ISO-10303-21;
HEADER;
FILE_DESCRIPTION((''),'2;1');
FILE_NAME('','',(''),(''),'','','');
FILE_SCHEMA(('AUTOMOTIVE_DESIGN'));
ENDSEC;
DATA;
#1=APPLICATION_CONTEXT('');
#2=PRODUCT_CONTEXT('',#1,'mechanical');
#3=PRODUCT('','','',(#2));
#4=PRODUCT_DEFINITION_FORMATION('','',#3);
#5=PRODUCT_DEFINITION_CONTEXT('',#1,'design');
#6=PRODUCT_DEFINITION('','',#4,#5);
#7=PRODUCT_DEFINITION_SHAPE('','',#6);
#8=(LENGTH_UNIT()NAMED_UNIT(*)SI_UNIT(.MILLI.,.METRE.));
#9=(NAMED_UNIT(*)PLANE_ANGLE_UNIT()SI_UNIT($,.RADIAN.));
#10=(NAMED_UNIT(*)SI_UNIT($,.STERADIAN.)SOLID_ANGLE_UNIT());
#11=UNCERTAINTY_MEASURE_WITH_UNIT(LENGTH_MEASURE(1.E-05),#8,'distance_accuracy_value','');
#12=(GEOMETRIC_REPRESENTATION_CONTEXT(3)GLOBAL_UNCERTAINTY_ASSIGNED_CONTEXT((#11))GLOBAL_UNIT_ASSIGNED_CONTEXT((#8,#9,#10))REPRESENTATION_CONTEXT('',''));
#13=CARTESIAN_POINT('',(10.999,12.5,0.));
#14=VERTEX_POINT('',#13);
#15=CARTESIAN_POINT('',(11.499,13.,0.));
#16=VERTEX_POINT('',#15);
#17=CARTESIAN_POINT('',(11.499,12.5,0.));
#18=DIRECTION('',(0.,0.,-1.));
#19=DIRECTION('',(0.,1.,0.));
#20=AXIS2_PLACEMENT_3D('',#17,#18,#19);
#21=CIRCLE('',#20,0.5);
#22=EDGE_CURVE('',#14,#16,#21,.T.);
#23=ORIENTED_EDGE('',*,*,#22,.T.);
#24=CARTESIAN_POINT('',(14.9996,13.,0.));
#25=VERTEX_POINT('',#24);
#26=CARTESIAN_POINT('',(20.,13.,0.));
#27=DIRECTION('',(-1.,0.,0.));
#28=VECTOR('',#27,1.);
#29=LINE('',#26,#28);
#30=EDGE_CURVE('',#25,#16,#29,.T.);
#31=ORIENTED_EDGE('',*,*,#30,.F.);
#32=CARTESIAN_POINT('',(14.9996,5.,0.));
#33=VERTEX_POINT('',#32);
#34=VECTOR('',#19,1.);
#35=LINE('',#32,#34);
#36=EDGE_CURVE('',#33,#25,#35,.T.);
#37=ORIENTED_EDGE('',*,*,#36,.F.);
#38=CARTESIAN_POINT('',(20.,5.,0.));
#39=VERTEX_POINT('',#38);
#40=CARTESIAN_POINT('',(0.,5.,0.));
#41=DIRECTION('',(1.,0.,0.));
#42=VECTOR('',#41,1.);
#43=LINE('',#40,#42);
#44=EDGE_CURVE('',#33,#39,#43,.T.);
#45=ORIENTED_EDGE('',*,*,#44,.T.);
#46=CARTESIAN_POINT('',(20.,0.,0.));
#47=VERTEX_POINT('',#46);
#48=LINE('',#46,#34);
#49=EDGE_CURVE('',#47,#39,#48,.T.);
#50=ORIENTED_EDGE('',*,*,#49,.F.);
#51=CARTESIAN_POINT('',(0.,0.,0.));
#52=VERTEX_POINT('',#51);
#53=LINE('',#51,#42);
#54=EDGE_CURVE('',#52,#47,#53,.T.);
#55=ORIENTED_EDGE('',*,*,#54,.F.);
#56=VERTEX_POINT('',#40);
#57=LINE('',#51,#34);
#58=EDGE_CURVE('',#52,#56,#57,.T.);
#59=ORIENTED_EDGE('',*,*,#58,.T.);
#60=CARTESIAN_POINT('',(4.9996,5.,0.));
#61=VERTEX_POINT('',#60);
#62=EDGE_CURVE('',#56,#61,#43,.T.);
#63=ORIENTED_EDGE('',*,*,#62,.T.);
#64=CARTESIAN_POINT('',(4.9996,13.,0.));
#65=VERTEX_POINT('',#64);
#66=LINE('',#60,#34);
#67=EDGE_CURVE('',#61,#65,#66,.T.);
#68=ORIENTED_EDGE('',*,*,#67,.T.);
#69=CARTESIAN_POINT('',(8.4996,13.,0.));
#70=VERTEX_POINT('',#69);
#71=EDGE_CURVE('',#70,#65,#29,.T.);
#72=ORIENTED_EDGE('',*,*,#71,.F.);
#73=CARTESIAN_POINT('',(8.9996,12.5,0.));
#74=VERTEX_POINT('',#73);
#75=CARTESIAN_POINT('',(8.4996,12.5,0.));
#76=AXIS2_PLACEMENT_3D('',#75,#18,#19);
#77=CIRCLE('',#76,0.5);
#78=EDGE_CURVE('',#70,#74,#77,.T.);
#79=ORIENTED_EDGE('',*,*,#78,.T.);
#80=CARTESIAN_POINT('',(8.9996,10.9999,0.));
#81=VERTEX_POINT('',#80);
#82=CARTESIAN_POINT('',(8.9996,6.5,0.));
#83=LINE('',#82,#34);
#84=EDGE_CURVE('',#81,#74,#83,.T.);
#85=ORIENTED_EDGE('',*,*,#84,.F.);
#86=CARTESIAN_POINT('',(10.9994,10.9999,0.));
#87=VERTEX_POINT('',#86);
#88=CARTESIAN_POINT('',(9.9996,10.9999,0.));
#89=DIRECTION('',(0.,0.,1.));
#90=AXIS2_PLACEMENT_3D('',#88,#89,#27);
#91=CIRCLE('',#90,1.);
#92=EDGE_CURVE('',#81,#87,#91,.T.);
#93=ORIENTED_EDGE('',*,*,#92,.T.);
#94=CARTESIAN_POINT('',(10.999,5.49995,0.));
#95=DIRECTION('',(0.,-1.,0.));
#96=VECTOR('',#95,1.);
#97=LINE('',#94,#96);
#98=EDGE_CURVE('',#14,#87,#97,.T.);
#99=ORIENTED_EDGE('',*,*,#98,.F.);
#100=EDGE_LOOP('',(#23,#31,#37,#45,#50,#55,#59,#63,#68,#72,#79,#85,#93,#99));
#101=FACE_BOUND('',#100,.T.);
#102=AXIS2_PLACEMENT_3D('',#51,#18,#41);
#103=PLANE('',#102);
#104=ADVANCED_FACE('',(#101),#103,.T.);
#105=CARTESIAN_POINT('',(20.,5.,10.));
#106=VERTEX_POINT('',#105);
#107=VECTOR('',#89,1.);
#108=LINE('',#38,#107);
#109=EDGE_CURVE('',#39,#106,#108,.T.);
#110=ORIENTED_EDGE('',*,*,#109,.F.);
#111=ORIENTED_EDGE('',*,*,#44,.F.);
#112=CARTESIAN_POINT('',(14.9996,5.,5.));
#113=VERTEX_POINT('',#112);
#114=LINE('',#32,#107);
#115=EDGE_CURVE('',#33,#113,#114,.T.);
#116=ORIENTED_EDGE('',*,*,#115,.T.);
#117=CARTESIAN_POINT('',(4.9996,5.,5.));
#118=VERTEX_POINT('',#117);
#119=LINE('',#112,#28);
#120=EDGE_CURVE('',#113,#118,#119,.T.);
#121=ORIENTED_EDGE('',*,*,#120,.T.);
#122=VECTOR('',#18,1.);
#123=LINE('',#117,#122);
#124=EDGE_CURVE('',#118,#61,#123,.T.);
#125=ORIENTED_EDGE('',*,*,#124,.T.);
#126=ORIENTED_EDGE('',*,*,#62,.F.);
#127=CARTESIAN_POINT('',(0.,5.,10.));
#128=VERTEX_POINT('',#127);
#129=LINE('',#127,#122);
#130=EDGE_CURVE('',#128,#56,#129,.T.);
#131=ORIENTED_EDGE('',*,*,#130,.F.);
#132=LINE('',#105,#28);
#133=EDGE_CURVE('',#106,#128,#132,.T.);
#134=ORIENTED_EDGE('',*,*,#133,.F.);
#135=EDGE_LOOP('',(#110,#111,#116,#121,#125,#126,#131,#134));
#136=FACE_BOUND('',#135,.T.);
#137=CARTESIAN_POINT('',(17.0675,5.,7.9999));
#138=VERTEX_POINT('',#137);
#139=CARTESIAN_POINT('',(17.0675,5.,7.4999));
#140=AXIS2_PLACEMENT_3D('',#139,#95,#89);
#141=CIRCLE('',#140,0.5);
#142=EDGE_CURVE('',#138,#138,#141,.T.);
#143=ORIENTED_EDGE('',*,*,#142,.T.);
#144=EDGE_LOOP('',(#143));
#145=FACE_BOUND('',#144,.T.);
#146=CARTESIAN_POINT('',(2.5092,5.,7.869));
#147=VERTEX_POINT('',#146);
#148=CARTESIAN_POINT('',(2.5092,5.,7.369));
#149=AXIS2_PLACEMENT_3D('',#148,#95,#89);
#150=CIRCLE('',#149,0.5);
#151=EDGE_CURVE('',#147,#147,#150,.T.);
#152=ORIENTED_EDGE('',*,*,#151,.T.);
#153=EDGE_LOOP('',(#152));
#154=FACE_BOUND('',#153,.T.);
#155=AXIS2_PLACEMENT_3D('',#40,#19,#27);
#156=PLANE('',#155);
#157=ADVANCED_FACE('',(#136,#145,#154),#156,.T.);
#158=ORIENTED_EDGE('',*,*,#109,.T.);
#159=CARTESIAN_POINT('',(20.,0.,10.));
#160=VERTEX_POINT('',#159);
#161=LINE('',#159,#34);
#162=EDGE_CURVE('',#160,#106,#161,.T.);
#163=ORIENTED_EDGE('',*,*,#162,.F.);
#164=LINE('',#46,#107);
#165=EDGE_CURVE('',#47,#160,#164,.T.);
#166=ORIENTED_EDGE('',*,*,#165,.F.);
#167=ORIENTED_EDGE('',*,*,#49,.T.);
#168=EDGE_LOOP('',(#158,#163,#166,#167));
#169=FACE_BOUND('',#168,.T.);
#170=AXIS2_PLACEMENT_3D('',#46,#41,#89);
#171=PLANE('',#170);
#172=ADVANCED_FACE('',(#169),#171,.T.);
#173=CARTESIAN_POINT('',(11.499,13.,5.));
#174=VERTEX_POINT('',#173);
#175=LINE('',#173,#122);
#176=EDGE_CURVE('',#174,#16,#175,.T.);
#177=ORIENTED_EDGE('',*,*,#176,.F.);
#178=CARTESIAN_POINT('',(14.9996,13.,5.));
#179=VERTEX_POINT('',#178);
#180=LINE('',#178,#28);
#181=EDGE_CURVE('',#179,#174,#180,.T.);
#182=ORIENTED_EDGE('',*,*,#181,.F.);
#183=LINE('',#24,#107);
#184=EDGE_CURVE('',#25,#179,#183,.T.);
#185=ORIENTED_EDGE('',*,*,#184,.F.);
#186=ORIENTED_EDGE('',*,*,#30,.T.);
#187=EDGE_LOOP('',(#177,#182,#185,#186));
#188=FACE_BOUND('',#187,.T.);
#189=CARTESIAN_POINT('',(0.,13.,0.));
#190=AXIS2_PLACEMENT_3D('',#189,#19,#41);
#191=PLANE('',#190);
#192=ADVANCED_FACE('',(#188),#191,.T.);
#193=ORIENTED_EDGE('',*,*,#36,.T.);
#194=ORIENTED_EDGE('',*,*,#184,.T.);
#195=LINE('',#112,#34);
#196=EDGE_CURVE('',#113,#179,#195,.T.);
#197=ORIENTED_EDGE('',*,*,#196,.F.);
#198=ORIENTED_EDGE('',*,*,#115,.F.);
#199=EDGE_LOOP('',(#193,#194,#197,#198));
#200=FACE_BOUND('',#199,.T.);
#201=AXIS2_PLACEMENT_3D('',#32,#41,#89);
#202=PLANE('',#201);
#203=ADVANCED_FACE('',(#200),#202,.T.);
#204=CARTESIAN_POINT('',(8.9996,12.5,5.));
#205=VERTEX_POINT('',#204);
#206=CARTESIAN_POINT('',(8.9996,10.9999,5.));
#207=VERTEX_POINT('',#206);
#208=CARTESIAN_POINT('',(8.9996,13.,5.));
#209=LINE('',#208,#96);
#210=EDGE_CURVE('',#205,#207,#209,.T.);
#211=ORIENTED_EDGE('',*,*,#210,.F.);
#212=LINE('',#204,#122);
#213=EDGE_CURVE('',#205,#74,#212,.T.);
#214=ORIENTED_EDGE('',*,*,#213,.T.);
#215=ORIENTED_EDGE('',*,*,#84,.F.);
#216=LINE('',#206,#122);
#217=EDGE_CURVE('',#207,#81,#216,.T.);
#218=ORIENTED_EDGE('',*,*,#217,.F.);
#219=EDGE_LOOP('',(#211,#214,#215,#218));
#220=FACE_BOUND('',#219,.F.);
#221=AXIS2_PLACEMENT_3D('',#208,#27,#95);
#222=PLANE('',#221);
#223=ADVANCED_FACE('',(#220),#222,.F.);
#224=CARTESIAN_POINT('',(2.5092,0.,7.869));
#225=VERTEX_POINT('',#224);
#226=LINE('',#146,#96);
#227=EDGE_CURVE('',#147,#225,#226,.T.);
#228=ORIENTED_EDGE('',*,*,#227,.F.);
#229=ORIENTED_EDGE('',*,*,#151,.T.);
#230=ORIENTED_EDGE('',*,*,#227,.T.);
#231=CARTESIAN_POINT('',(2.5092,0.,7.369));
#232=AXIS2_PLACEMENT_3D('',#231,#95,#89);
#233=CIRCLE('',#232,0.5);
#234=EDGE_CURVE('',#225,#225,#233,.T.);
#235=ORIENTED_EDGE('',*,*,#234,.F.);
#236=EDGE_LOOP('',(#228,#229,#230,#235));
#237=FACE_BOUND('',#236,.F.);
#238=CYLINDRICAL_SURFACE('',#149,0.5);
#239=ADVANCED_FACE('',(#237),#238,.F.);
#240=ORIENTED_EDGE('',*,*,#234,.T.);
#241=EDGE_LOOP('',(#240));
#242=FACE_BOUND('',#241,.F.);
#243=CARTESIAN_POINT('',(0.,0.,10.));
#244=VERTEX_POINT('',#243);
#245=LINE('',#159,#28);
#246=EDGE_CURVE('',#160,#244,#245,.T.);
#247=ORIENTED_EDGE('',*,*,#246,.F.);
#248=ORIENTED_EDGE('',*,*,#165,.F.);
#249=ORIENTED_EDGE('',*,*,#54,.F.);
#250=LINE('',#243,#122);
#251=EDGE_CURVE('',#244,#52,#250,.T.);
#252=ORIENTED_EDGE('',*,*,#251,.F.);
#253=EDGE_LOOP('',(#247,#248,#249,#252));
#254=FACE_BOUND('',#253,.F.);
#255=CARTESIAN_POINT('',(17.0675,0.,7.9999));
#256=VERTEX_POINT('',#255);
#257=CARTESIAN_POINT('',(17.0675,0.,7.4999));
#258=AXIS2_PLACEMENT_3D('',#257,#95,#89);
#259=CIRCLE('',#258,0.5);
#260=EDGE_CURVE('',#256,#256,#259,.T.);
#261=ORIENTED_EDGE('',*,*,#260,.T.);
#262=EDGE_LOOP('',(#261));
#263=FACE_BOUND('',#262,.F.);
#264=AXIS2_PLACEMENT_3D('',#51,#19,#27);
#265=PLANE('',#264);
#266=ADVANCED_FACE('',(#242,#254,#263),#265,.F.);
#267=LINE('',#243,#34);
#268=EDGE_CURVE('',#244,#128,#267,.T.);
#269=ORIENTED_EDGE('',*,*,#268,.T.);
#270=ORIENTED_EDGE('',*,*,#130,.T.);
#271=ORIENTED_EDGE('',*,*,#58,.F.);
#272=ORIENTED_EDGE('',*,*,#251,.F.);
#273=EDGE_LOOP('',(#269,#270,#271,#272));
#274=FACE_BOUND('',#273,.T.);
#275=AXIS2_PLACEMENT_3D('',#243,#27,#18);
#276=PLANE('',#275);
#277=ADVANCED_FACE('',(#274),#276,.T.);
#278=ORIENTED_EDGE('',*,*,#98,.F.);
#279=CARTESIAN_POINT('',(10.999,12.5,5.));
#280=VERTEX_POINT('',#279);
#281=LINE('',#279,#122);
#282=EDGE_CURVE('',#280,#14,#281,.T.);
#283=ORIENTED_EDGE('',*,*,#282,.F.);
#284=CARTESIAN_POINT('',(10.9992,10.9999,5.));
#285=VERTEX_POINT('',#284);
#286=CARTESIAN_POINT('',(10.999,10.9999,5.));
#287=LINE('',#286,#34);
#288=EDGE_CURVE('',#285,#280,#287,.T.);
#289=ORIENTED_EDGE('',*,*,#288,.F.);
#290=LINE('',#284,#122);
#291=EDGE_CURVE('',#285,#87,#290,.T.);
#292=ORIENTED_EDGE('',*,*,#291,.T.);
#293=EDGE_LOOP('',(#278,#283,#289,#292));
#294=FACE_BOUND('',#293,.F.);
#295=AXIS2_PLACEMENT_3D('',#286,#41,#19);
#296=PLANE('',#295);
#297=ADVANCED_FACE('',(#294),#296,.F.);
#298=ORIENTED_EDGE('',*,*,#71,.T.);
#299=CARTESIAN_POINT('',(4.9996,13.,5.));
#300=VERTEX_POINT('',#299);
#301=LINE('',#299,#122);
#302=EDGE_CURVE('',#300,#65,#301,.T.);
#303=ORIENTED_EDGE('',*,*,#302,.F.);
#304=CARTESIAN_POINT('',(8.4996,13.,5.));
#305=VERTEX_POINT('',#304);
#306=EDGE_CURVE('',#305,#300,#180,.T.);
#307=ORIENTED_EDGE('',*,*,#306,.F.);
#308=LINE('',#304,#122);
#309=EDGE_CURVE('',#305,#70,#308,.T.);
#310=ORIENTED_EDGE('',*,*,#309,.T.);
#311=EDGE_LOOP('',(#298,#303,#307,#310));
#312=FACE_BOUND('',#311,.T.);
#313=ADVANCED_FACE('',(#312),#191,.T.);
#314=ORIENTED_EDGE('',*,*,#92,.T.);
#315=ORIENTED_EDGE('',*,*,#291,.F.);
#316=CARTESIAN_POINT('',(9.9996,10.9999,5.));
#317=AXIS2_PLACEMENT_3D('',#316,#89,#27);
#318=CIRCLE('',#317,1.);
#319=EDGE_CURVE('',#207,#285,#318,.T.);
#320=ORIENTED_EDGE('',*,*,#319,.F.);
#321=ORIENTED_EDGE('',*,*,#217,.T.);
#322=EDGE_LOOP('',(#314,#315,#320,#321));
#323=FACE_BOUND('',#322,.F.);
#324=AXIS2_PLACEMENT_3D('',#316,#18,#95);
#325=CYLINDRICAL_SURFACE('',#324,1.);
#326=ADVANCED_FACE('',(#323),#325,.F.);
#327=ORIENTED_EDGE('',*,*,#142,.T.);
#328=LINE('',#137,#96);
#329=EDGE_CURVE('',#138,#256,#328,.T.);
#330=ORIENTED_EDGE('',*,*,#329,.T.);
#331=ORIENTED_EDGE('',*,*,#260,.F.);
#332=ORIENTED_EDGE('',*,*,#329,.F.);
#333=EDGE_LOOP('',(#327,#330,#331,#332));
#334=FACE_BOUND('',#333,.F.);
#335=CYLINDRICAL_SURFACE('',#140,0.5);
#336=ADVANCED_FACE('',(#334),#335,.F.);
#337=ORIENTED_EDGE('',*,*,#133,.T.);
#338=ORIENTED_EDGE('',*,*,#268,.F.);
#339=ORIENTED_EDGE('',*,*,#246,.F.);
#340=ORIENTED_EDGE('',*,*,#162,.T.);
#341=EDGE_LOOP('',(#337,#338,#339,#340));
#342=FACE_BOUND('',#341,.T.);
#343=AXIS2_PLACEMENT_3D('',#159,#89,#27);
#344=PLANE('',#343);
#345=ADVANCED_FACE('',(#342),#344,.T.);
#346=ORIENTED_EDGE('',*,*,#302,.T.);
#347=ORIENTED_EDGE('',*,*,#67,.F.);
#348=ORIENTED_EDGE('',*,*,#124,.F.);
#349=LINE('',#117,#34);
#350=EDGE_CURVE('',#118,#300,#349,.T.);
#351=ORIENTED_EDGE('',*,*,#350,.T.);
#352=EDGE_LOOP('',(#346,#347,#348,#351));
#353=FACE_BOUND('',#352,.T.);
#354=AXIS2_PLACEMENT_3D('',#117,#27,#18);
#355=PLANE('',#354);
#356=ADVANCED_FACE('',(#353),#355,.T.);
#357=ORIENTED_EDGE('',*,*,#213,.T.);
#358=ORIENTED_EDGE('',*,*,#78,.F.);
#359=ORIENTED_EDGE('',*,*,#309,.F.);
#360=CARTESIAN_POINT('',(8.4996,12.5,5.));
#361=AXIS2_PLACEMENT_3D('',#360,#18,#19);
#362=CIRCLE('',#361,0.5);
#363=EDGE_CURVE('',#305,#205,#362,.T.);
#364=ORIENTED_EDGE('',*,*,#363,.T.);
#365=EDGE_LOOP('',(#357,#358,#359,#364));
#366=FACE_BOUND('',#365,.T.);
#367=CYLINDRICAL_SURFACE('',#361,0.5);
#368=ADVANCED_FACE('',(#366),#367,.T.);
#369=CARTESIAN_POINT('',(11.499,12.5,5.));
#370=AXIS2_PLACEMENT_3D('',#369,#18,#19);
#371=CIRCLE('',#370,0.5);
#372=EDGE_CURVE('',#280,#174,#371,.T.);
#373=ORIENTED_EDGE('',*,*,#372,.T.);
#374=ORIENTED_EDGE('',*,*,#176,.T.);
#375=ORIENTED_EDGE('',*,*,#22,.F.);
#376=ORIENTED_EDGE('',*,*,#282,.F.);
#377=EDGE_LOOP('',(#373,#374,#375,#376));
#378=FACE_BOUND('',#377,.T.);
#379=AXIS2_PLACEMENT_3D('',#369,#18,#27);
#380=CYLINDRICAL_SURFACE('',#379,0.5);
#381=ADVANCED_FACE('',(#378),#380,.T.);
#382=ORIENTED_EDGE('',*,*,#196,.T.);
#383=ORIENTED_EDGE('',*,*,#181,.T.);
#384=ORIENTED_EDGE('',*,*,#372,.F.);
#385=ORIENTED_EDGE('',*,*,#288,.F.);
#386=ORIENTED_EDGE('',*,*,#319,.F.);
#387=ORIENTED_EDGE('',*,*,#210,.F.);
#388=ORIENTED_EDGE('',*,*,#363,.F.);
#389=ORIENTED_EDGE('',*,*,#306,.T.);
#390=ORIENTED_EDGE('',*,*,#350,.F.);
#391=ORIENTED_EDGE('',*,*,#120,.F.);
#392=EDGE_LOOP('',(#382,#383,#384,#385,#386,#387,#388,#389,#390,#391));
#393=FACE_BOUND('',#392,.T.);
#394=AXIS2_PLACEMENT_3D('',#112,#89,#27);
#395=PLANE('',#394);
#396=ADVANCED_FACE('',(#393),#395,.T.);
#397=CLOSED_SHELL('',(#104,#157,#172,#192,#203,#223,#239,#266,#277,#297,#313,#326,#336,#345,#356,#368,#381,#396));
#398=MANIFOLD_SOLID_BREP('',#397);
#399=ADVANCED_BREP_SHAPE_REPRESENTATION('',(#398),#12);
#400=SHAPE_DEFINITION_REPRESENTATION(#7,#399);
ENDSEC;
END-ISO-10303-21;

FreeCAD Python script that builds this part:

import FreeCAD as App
import Part
import Sketcher
from FreeCAD import Vector
Q = App.Units.Quantity


def edges_at(feature, points):
    """Names of the edges that pass closest to the given points."""
    edges = feature.Shape.Edges
    near = lambda p: min(range(len(edges)), key=lambda i: edges[i].distToShape(Part.Vertex(*p))[0])
    return sorted({f"Edge{near(p) + 1}" for p in points})


def add_polygon(sketch, points):
    """Adds a closed chain of lines whose ends are joined by coincident constraints."""
    first, n = sketch.GeometryCount, len(points)
    for a, b in zip(points, points[1:] + points[:1]):
        sketch.addGeometry(Part.LineSegment(App.Vector(*a, 0), App.Vector(*b, 0)), False)
    for i in range(n):
        sketch.addConstraint(Sketcher.Constraint("Coincident", first + i, 2, first + (i + 1) % n, 1))

doc = App.newDocument("Part")
body = doc.addObject("PartDesign::Body", "Body")

sketch1 = doc.addObject("Sketcher::SketchObject", "Sketch")
body.addObject(sketch1)
sketch1.AttachmentSupport = (doc.XZ_Plane, [""])
sketch1.MapMode = "FlatFace"
add_polygon(sketch1, [(20, 0), (0, 0), (0, 10), (20, 10)])
sketch1.addConstraint(Sketcher.Constraint("Horizontal", 0))
sketch1.addConstraint(Sketcher.Constraint("Vertical", 1))
sketch1.addConstraint(Sketcher.Constraint("Horizontal", 2))
sketch1.addConstraint(Sketcher.Constraint("Vertical", 3))
sketch1.addConstraint(Sketcher.Constraint("Coincident", 0, 2, -1, 1))
sketch1.addConstraint(Sketcher.Constraint("DistanceX", 0, 2, 0, 1, Q("20 mm")))
sketch1.addConstraint(Sketcher.Constraint("DistanceY", 1, 1, 1, 2, Q("10 mm")))
pad1 = doc.addObject("PartDesign::Pad", "Pad")
body.addObject(pad1)
pad1.Profile = sketch1
pad1.Length = 5
pad1.Reversed = True

sketch2 = doc.addObject("Sketcher::SketchObject", "Sketch001")
body.addObject(sketch2)
sketch2.AttachmentSupport = (doc.XZ_Plane, [""])
sketch2.MapMode = "FlatFace"
sketch2.AttachmentOffset = App.Placement(Vector(0, 0, -5), App.Rotation())
add_polygon(sketch2, [(14.9996, 5), (14.9996, 0), (4.9996, 0), (4.9996, 5)])
sketch2.addConstraint(Sketcher.Constraint("Vertical", 0))
sketch2.addConstraint(Sketcher.Constraint("Horizontal", 1))
sketch2.addConstraint(Sketcher.Constraint("Vertical", 2))
sketch2.addConstraint(Sketcher.Constraint("Horizontal", 3))
sketch2.addConstraint(Sketcher.Constraint("PointOnObject", 0, 2, -1))
sketch2.addConstraint(Sketcher.Constraint("DistanceX", 1, 2, 1, 1, Q("10 mm")))
sketch2.addConstraint(Sketcher.Constraint("DistanceY", 0, 2, 0, 1, Q("5 mm")))
sketch2.addConstraint(Sketcher.Constraint("DistanceX", -1, 1, 1, 2, Q("4.9996 mm")))
pad2 = doc.addObject("PartDesign::Pad", "Pad001")
body.addObject(pad2)
pad2.Profile = sketch2
pad2.Length = 8
pad2.Reversed = True

sketch3 = doc.addObject("Sketcher::SketchObject", "Sketch002")
body.addObject(sketch3)
sketch3.AttachmentSupport = (doc.XY_Plane, [""])
sketch3.MapMode = "FlatFace"
sketch3.AttachmentOffset = App.Placement(Vector(0, 0, 5), App.Rotation())
sketch3.addGeometry(Part.Circle(Vector(9.9996, 10.9999, 0), Vector(0, 0, 1), 1), False)
sketch3.addConstraint(Sketcher.Constraint("Diameter", 0, Q("2 mm")))
sketch3.addConstraint(Sketcher.Constraint("DistanceY", -1, 1, 0, 3, Q("11 mm")))
sketch3.addConstraint(Sketcher.Constraint("DistanceX", -1, 1, 0, 3, Q("9.9996 mm")))
doc.recompute()
hole = doc.addObject("PartDesign::Hole", "Hole")
body.addObject(hole)
hole.Profile = sketch3
hole.ThreadType = "None"
hole.Diameter = 2
hole.DepthType = "ThroughAll"

sketch4 = doc.addObject("Sketcher::SketchObject", "Sketch003")
body.addObject(sketch4)
sketch4.AttachmentSupport = (doc.XY_Plane, [""])
sketch4.MapMode = "FlatFace"
sketch4.AttachmentOffset = App.Placement(Vector(0, 0, 5), App.Rotation())
add_polygon(sketch4, [(8.9996, 10.9999), (10.999, 10.9999), (10.999, 13), (8.9996, 13)])
sketch4.addConstraint(Sketcher.Constraint("Horizontal", 0))
sketch4.addConstraint(Sketcher.Constraint("Vertical", 1))
sketch4.addConstraint(Sketcher.Constraint("Horizontal", 2))
sketch4.addConstraint(Sketcher.Constraint("Vertical", 3))
sketch4.addConstraint(Sketcher.Constraint("DistanceY", 1, 1, 1, 2, Q("2 mm")))
sketch4.addConstraint(Sketcher.Constraint("DistanceY", -1, 1, 0, 2, Q("11 mm")))
sketch4.addConstraint(Sketcher.Constraint("DistanceX", 0, 1, 0, 2, Q("1.9994 mm")))
sketch4.addConstraint(Sketcher.Constraint("DistanceX", -1, 1, 0, 2, Q("10.999 mm")))
pocket1 = doc.addObject("PartDesign::Pocket", "Pocket")
body.addObject(pocket1)
pocket1.Profile = sketch4
pocket1.Length = 5.6375

sketch5 = doc.addObject("Sketcher::SketchObject", "Sketch004")
body.addObject(sketch5)
sketch5.AttachmentSupport = (doc.XZ_Plane, [""])
sketch5.MapMode = "FlatFace"
sketch5.AttachmentOffset = App.Placement(Vector(0, 0, -5), App.Rotation())
sketch5.addGeometry(Part.Circle(Vector(2.5092, 7.369, 0), Vector(0, 0, 1), 0.5), False)
sketch5.addConstraint(Sketcher.Constraint("Diameter", 0, Q("1 mm")))
sketch5.addConstraint(Sketcher.Constraint("DistanceY", -1, 1, 0, 3, Q("7.369 mm")))
sketch5.addConstraint(Sketcher.Constraint("DistanceX", -1, 1, 0, 3, Q("2.5092 mm")))
doc.recompute()
hole2 = doc.addObject("PartDesign::Hole", "Hole001")
body.addObject(hole2)
hole2.Profile = sketch5
hole2.ThreadType = "None"
hole2.Diameter = 1
hole2.DepthType = "ThroughAll"
hole2.Reversed = True

sketch6 = doc.addObject("Sketcher::SketchObject", "Sketch005")
body.addObject(sketch6)
sketch6.AttachmentSupport = (doc.XZ_Plane, [""])
sketch6.MapMode = "FlatFace"
sketch6.AttachmentOffset = App.Placement(Vector(0, 0, -5), App.Rotation())
sketch6.addGeometry(Part.Circle(Vector(17.0675, 7.4999, 0), Vector(0, 0, 1), 0.5), False)
sketch6.addConstraint(Sketcher.Constraint("Diameter", 0, Q("1 mm")))
sketch6.addConstraint(Sketcher.Constraint("DistanceY", -1, 1, 0, 3, Q("7.5 mm")))
sketch6.addConstraint(Sketcher.Constraint("DistanceX", -1, 1, 0, 3, Q("17.0675 mm")))
doc.recompute()
hole3 = doc.addObject("PartDesign::Hole", "Hole002")
body.addObject(hole3)
hole3.Profile = sketch6
hole3.ThreadType = "None"
hole3.Diameter = 1
hole3.DepthType = "ThroughAll"
hole3.Reversed = True
doc.recompute()

fillet = doc.addObject("PartDesign::Fillet", "Fillet")
body.addObject(fillet)
fillet.Base = (hole3, edges_at(hole3, [(10.999, 13, 2.5), (9, 13, 2.5)]))
fillet.Radius = 0.5

doc.recompute()
